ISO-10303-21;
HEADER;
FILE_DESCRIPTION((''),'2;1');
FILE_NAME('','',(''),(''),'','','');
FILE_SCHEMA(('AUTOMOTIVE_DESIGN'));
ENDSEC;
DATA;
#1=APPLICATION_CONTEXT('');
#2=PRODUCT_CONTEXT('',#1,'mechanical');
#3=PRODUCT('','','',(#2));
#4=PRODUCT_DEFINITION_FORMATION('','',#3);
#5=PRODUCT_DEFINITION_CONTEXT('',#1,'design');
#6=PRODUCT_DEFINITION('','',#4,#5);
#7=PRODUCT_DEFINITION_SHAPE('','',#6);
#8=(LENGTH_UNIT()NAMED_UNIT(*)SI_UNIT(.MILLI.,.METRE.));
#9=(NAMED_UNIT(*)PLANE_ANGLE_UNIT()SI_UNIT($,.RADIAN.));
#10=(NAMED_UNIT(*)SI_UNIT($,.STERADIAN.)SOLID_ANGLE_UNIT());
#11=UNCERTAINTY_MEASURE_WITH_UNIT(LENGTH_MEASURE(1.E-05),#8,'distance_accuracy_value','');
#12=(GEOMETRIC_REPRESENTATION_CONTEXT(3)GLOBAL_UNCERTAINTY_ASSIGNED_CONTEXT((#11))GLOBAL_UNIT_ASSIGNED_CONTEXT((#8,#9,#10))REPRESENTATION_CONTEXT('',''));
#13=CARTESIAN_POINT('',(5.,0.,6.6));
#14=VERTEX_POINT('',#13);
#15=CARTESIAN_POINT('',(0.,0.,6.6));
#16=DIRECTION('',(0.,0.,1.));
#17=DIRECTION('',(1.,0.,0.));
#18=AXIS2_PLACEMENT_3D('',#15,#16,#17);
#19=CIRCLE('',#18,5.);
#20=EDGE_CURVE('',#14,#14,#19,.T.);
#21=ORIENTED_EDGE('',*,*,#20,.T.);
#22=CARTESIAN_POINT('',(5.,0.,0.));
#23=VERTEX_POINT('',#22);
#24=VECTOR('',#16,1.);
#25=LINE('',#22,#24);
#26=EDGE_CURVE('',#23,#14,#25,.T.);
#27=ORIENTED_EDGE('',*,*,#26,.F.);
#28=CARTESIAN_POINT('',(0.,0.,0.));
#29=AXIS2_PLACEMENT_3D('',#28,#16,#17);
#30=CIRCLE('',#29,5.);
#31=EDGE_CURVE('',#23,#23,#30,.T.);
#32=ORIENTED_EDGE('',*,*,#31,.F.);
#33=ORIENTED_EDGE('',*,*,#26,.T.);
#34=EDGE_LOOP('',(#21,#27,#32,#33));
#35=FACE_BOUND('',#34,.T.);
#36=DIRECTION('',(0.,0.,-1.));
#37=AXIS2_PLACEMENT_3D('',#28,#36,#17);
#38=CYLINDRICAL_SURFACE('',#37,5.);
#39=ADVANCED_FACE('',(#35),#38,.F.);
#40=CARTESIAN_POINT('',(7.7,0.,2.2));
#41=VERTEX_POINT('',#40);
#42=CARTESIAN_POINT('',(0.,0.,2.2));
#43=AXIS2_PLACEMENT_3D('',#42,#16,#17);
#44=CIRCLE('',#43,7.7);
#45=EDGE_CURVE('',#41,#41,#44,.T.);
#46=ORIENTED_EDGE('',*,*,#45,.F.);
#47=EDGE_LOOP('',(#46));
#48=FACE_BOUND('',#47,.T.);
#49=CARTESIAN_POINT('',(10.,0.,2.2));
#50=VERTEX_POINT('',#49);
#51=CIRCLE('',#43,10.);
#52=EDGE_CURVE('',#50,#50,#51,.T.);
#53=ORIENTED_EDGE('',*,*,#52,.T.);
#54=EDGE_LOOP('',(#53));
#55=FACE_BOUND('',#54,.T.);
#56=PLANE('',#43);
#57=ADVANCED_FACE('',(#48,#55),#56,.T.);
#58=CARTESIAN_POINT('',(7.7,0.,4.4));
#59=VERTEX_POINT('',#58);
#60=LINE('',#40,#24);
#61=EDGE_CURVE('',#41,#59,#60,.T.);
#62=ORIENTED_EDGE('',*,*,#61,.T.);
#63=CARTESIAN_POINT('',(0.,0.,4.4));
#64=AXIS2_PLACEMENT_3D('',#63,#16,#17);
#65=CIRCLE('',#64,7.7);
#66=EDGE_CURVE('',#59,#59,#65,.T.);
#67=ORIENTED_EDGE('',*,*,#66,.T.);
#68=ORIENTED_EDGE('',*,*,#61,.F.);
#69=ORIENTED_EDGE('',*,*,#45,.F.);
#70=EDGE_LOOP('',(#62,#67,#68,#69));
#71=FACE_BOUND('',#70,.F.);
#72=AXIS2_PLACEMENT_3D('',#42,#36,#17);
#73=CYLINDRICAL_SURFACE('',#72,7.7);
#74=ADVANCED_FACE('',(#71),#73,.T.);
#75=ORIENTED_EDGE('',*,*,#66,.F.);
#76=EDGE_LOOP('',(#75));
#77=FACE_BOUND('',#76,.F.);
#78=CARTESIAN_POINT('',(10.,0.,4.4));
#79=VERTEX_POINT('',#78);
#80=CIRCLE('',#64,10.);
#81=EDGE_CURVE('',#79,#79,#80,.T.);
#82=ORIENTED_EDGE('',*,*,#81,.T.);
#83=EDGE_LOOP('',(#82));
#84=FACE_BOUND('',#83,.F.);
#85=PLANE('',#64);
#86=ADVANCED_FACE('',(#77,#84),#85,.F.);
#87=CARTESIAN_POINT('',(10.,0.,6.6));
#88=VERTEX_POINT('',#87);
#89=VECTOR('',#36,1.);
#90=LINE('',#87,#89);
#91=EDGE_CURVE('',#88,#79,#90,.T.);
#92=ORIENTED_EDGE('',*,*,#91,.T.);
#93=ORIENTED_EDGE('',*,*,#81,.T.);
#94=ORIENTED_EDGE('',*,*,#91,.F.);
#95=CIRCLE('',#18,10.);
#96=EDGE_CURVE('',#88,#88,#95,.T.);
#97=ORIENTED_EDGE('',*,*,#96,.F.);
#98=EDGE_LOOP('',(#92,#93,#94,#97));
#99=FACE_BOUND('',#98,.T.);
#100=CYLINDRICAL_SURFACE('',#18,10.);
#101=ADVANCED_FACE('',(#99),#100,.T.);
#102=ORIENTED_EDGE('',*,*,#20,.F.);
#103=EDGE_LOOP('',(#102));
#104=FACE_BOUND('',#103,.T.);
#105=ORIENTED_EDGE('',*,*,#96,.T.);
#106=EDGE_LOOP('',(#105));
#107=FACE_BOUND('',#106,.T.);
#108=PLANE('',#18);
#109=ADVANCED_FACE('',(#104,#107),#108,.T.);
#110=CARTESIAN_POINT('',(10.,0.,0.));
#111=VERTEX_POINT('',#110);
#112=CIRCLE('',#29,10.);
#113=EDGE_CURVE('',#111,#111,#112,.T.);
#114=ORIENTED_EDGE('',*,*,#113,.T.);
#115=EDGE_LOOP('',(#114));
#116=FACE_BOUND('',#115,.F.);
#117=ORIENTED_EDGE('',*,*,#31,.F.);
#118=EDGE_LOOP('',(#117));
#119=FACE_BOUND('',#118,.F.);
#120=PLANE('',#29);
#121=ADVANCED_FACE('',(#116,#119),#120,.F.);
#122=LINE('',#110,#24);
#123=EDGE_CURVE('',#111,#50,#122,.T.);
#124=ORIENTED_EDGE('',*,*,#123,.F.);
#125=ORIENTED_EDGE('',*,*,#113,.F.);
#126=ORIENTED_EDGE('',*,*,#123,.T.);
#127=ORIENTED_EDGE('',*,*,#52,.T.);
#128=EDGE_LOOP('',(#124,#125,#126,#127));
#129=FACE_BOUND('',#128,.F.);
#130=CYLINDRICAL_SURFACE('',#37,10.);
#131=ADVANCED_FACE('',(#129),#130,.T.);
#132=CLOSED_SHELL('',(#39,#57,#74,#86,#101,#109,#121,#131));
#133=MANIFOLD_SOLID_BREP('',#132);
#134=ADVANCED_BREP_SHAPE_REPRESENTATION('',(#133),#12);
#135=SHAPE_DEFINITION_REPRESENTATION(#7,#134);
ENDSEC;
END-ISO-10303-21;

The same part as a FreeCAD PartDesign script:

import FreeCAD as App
import Part
import Sketcher

V = App.Vector
Q = App.Units.Quantity

doc = App.newDocument("Part")
body = doc.addObject("PartDesign::Body", "Body")

# Sketch on XY plane
sketch1 = doc.addObject("Sketcher::SketchObject", "Sketch")
body.addObject(sketch1)
sketch1.AttachmentSupport = (doc.XY_Plane, [""])
sketch1.MapMode = "FlatFace"
sketch1.addGeometry([
    Part.Circle(V(0, 0, 0), V(0, 0, 1), 10),
    Part.Circle(V(0, 0, 0), V(0, 0, 1), 5),
], False)
sketch1.addConstraint([
    Sketcher.Constraint("Coincident", 0, 3, -1, 1),
    Sketcher.Constraint("Coincident", 1, 3, -1, 1),
    Sketcher.Constraint("Diameter", 0, Q("20 mm")),
    Sketcher.Constraint("Diameter", 1, Q("10 mm")),
])
pad1 = doc.addObject("PartDesign::Pad", "Pad")
body.addObject(pad1)
pad1.Profile = sketch1
pad1.Length = 2.2

# Sketch on XY plane
sketch2 = doc.addObject("Sketcher::SketchObject", "Sketch001")
body.addObject(sketch2)
sketch2.AttachmentSupport = (doc.XY_Plane, [""])
sketch2.MapMode = "FlatFace"
sketch2.AttachmentOffset = App.Placement(V(0, 0, 2.2), App.Rotation())
sketch2.addGeometry([
    Part.Circle(V(0, 0, 0), V(0, 0, 1), 8),
    Part.Circle(V(0, 0, 0), V(0, 0, 1), 5),
], False)
sketch2.addConstraint([
    Sketcher.Constraint("Coincident", 0, 3, -1, 1),
    Sketcher.Constraint("Coincident", 1, 3, -1, 1),
    Sketcher.Constraint("Diameter", 0, Q("15.4 mm")),
    Sketcher.Constraint("Diameter", 1, Q("10 mm")),
])
pad2 = doc.addObject("PartDesign::Pad", "Pad001")
body.addObject(pad2)
pad2.Profile = sketch2
pad2.Length = 4.4

# Sketch on XY plane
sketch3 = doc.addObject("Sketcher::SketchObject", "Sketch002")
body.addObject(sketch3)
sketch3.AttachmentSupport = (doc.XY_Plane, [""])
sketch3.MapMode = "FlatFace"
sketch3.AttachmentOffset = App.Placement(V(0, 0, 6.6), App.Rotation())
sketch3.addGeometry([
    Part.Circle(V(0, 0, 0), V(0, 0, 1), 10),
    Part.Circle(V(0, 0, 0), V(0, 0, 1), 8),
], False)
sketch3.addConstraint([
    Sketcher.Constraint("Coincident", 0, 3, -1, 1),
    Sketcher.Constraint("Coincident", 1, 3, -1, 1),
    Sketcher.Constraint("Diameter", 0, Q("20 mm")),
    Sketcher.Constraint("Diameter", 1, Q("15.4 mm")),
])
pad3 = doc.addObject("PartDesign::Pad", "Pad002")
body.addObject(pad3)
pad3.Profile = sketch3
pad3.Length = 2.2
pad3.Reversed = True

doc.recompute()
